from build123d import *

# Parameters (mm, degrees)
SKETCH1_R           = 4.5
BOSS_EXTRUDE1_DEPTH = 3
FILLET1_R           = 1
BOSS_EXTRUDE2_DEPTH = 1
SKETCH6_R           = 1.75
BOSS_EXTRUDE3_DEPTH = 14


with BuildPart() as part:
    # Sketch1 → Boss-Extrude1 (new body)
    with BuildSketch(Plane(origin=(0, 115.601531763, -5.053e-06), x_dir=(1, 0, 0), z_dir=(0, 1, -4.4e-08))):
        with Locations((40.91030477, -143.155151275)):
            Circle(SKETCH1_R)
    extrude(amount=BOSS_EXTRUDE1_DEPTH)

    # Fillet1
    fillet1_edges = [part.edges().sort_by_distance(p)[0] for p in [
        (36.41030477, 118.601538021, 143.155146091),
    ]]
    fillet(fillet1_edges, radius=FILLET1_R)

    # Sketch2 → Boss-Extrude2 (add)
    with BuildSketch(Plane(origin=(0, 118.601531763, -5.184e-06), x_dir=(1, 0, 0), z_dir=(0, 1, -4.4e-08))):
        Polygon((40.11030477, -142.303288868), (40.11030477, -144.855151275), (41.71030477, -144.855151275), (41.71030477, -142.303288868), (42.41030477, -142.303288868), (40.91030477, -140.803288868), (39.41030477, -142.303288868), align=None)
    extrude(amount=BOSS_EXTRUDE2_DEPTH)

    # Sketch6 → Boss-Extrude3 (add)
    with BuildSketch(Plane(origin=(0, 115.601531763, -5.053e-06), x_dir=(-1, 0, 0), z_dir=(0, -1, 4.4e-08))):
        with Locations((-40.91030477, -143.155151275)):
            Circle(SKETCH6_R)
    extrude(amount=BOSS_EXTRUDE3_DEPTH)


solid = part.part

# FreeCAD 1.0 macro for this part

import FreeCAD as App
import Part
import Sketcher

V = App.Vector


def edges_at(feature, points):
    """Names of the edges that pass closest to the given points."""
    edges = feature.Shape.Edges
    near = lambda p: min(range(len(edges)), key=lambda i: edges[i].distToShape(Part.Vertex(*p))[0])
    return sorted({f"Edge{near(p) + 1}" for p in points})


def add_polygon(sketch, points):
    """Adds a closed chain of lines whose ends are joined by coincident constraints."""
    first, n = sketch.GeometryCount, len(points)
    for a, b in zip(points, points[1:] + points[:1]):
        sketch.addGeometry(Part.LineSegment(App.Vector(*a, 0), App.Vector(*b, 0)), False)
    for i in range(n):
        sketch.addConstraint(Sketcher.Constraint("Coincident", first + i, 2, first + (i + 1) % n, 1))

doc = App.newDocument("Part")
body = doc.addObject("PartDesign::Body", "Body")

sketch1 = body.newObject("Sketcher::SketchObject", "Sketch")
sketch1.AttachmentSupport = (doc.getObject("XZ_Plane"), [""])
sketch1.MapMode = "FlatFace"
sketch1.AttachmentOffset = App.Placement(V(0, 0, -115.601532), App.Rotation())
sketch1.addGeometry(Part.Circle(V(40.9, 143.2, 0), V(0, 0, 1), 4.5), False)
sketch1.addConstraint([
    Sketcher.Constraint("Diameter", 0, 9.0),
    Sketcher.Constraint("DistanceX", -1, 1, 0, 3, 40.910305),
    Sketcher.Constraint("DistanceY", -1, 1, 0, 3, 143.155146),
])
pad1 = body.newObject("PartDesign::Pad", "Pad")
pad1.Profile = sketch1
pad1.Length = 3
pad1.Reversed = True
doc.recompute()

fillet = body.newObject("PartDesign::Fillet", "Fillet")
fillet.Base = (pad1, edges_at(pad1, [(36.41, 118.602, 143.155)]))
fillet.Radius = 1

sketch2 = body.newObject("Sketcher::SketchObject", "Sketch001")
sketch2.AttachmentSupport = (doc.getObject("XZ_Plane"), [""])
sketch2.MapMode = "FlatFace"
sketch2.AttachmentOffset = App.Placement(V(0, 0, -118.601532), App.Rotation())
add_polygon(sketch2, [(40.1, 142.3), (40.1, 144.9), (41.7, 144.9), (41.7, 142.3), (42.4, 142.3), (40.9, 140.8), (39.4, 142.3)])
sketch2.addConstraint([
    Sketcher.Constraint("Vertical", 0),
    Sketcher.Constraint("Horizontal", 1),
    Sketcher.Constraint("Vertical", 2),
    Sketcher.Constraint("Horizontal", 3),
    Sketcher.Constraint("Horizontal", 6),
    Sketcher.Constraint("Perpendicular", 4, 5),
    Sketcher.Constraint("Horizontal", 3, 2, 5, 2),
    Sketcher.Constraint("Equal", 3, 6),
    Sketcher.Constraint("Equal", 4, 5),
    Sketcher.Constraint("DistanceX", 1, 1, 1, 2, 1.6),
    Sketcher.Constraint("DistanceX", 3, 1, 3, 2, 0.7),
    Sketcher.Constraint("DistanceY", 0, 1, 0, 2, 2.551862),
    Sketcher.Constraint("DistanceX", -1, 1, 0, 2, 40.110305),
    Sketcher.Constraint("DistanceY", -1, 1, 0, 2, 144.855146),
])
pad2 = body.newObject("PartDesign::Pad", "Pad001")
pad2.Profile = sketch2
pad2.Length = 1
pad2.Reversed = True

sketch3 = body.newObject("Sketcher::SketchObject", "Sketch002")
sketch3.AttachmentSupport = (doc.getObject("XZ_Plane"), [""])
sketch3.MapMode = "FlatFace"
sketch3.AttachmentOffset = App.Placement(V(0, 0, -115.601532), App.Rotation())
sketch3.addGeometry(Part.Circle(V(40.9, 143.2, 0), V(0, 0, 1), 1.8), False)
sketch3.addConstraint([
    Sketcher.Constraint("Diameter", 0, 3.5),
    Sketcher.Constraint("DistanceX", -1, 1, 0, 3, 40.910305),
    Sketcher.Constraint("DistanceY", -1, 1, 0, 3, 143.155146),
])
pad3 = body.newObject("PartDesign::Pad", "Pad002")
pad3.Profile = sketch3
pad3.Length = 14

doc.recompute()
